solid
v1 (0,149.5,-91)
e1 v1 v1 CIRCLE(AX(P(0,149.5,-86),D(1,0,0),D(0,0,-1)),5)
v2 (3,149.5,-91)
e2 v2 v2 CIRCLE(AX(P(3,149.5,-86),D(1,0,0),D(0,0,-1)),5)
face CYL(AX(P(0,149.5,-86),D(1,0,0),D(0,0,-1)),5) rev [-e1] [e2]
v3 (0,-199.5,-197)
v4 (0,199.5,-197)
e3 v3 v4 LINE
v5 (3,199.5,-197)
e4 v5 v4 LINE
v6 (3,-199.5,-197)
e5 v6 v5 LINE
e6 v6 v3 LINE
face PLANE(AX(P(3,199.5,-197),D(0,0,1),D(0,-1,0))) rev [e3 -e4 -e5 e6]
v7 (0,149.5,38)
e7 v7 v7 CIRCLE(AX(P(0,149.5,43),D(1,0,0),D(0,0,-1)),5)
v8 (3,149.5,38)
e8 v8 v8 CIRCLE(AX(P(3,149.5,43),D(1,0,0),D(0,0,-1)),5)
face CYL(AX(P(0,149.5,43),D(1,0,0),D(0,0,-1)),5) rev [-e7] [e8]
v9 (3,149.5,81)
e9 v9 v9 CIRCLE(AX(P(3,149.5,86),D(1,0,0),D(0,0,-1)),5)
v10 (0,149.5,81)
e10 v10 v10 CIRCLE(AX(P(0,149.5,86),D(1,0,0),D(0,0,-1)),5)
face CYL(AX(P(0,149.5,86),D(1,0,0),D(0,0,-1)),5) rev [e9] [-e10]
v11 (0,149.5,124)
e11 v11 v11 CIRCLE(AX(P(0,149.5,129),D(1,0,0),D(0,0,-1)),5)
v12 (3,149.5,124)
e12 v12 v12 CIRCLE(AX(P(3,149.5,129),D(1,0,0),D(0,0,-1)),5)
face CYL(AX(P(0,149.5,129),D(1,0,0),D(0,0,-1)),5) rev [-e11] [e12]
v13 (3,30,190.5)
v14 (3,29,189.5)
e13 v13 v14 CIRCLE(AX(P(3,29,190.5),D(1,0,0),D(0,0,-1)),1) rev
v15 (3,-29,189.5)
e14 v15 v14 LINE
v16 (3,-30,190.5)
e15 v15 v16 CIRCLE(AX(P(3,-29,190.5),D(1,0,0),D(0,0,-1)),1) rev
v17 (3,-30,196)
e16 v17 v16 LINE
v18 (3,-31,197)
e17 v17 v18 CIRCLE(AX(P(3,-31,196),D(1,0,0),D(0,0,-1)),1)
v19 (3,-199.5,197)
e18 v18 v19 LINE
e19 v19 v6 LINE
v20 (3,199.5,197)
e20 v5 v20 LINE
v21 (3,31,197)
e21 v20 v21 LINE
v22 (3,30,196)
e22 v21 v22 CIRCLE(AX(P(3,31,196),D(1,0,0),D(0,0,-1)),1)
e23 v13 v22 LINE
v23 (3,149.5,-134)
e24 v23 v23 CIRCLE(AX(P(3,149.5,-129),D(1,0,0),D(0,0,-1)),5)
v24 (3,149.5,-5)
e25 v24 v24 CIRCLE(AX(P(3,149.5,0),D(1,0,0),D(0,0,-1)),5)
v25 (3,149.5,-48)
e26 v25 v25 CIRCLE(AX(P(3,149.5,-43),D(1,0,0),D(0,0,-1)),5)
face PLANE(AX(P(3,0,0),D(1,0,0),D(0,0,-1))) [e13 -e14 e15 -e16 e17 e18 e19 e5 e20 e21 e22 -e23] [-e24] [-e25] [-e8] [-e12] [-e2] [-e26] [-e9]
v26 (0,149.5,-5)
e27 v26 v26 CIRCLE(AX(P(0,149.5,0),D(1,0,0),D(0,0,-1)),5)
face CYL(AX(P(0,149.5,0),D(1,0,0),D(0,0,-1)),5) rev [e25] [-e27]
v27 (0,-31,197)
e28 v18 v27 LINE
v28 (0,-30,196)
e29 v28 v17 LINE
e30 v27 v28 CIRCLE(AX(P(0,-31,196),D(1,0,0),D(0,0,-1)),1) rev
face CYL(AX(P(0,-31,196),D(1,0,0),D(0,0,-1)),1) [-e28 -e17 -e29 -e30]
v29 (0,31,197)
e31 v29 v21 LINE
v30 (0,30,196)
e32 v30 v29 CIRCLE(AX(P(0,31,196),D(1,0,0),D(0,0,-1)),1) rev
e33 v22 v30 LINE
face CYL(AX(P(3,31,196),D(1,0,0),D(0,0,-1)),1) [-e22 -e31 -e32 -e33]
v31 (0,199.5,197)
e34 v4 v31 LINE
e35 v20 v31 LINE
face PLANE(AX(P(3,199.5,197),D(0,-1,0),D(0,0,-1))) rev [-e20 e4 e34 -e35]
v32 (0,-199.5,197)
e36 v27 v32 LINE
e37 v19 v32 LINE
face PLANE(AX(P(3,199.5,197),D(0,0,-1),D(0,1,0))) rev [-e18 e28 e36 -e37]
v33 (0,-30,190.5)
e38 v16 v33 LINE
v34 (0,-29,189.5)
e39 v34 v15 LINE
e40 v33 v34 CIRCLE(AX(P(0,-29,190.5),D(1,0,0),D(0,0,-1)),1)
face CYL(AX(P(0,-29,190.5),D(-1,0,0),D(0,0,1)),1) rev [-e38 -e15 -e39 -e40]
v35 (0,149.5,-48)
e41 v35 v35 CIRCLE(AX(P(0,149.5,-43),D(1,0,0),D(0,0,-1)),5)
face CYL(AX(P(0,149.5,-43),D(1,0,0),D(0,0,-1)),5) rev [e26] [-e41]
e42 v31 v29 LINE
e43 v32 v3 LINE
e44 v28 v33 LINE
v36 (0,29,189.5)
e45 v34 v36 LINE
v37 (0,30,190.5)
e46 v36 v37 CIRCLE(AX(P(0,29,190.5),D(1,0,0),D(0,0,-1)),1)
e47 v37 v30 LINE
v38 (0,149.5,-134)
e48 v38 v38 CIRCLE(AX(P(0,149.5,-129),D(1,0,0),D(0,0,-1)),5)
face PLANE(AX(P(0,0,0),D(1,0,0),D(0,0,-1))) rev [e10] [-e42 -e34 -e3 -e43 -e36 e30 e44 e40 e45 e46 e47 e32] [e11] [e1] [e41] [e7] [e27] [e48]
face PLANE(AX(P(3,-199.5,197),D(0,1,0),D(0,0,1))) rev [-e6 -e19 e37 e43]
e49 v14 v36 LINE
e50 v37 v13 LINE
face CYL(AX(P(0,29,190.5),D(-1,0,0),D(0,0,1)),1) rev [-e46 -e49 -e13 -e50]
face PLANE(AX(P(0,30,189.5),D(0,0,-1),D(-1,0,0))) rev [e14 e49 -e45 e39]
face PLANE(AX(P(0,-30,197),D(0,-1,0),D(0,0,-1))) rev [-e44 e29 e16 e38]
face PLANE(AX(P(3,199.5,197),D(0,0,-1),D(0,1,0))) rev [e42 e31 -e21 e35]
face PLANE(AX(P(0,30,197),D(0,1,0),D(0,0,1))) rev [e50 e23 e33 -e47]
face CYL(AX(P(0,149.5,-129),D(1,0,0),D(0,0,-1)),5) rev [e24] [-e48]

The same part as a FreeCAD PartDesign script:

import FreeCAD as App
import Part
import Sketcher

V = App.Vector


def edges_at(feature, points):
    """Names of the edges that pass closest to the given points."""
    edges = feature.Shape.Edges
    near = lambda p: min(range(len(edges)), key=lambda i: edges[i].distToShape(Part.Vertex(*p))[0])
    return sorted({f"Edge{near(p) + 1}" for p in points})

doc = App.newDocument("Part")
params = doc.addObject("Spreadsheet::Sheet", "Params")
for row, (alias, value) in enumerate([
    ("sketch1_width", "399 mm"),
    ("sketch1_height", "394 mm"),
    ("pad1_length", "3 mm"),
    ("sketch2_diameter", "10 mm"),
    ("sketch2_width", "60 mm"),
    ("sketch2_height", "7.5 mm"),
    ("fillet_radius", "1 mm"),
], start=1):
    params.set(f"A{row}", alias)
    params.set(f"B{row}", "=" + value)
    params.setAlias(f"B{row}", alias)

body = doc.addObject("PartDesign::Body", "Body")

# Sketch on YZ plane
sketch1 = body.newObject("Sketcher::SketchObject", "Sketch")
sketch1.AttachmentSupport = (doc.getObject("YZ_Plane"), [""])
sketch1.MapMode = "FlatFace"
sketch1.addGeometry([
    Part.LineSegment(V(199.5, 197, 0), V(-199.5, 197, 0)),
    Part.LineSegment(V(-199.5, 197, 0), V(-199.5, -197, 0)),
    Part.LineSegment(V(-199.5, -197, 0), V(199.5, -197, 0)),
    Part.LineSegment(V(199.5, -197, 0), V(199.5, 197, 0)),
], False)
sketch1.addConstraint([
    Sketcher.Constraint("Coincident", 0, 2, 1, 1),
    Sketcher.Constraint("Coincident", 1, 2, 2, 1),
    Sketcher.Constraint("Coincident", 2, 2, 3, 1),
    Sketcher.Constraint("Coincident", 3, 2, 0, 1),
    Sketcher.Constraint("Horizontal", 0),
    Sketcher.Constraint("Vertical", 1),
    Sketcher.Constraint("Horizontal", 2),
    Sketcher.Constraint("Vertical", 3),
    Sketcher.Constraint("Symmetric", 0, 2, 2, 2, -1, 1),
    Sketcher.Constraint("DistanceX", 0, 2, 0, 1, 399.0),
    Sketcher.Constraint("DistanceY", 1, 2, 1, 1, 394.0),
])
sketch1.setExpression("Constraints[9]", "Params.sketch1_width")
sketch1.setExpression("Constraints[10]", "Params.sketch1_height")
pad1 = body.newObject("PartDesign::Pad", "Pad")
pad1.Profile = sketch1
pad1.setExpression("Length", "Params.pad1_length")

# Sketch on YZ plane
sketch2 = body.newObject("Sketcher::SketchObject", "Sketch001")
sketch2.AttachmentSupport = (doc.getObject("YZ_Plane"), [""])
sketch2.MapMode = "FlatFace"
sketch2.AttachmentOffset = App.Placement(V(0, 0, 3), App.Rotation())
sketch2.addGeometry([
    Part.Circle(V(149.5, 129, 0), V(0, 0, 1), 5),  # 0
    Part.Circle(V(149.5, 86, 0), V(0, 0, 1), 5),  # 1
    Part.Circle(V(149.5, 43, 0), V(0, 0, 1), 5),  # 2
    Part.Circle(V(149.5, 0, 0), V(0, 0, 1), 5),  # 3
    Part.Circle(V(149.5, -43, 0), V(0, 0, 1), 5),  # 4
    Part.Circle(V(149.5, -86, 0), V(0, 0, 1), 5),  # 5
    Part.Circle(V(149.5, -129, 0), V(0, 0, 1), 5),  # 6
    Part.LineSegment(V(30, 197, 0), V(-30, 197, 0)),  # 7
    Part.LineSegment(V(-30, 197, 0), V(-30, 189.5, 0)),  # 8
    Part.LineSegment(V(-30, 189.5, 0), V(30, 189.5, 0)),  # 9
    Part.LineSegment(V(30, 189.5, 0), V(30, 197, 0)),  # 10
], False)
sketch2.addConstraint([
    Sketcher.Constraint("Coincident", 7, 2, 8, 1),
    Sketcher.Constraint("Coincident", 8, 2, 9, 1),
    Sketcher.Constraint("Coincident", 9, 2, 10, 1),
    Sketcher.Constraint("Coincident", 10, 2, 7, 1),
    Sketcher.Constraint("Horizontal", 7),
    Sketcher.Constraint("Vertical", 8),
    Sketcher.Constraint("Horizontal", 9),
    Sketcher.Constraint("Vertical", 10),
    Sketcher.Constraint("Equal", 0, 1),
    Sketcher.Constraint("Equal", 1, 2),
    Sketcher.Constraint("Equal", 2, 3),
    Sketcher.Constraint("Equal", 3, 4),
    Sketcher.Constraint("Equal", 4, 5),
    Sketcher.Constraint("Equal", 5, 6),
    Sketcher.Constraint("Symmetric", 2, 3, 4, 3, -1),
    Sketcher.Constraint("Symmetric", 1, 3, 5, 3, -1),
    Sketcher.Constraint("Symmetric", 0, 3, 6, 3, -1),
    Sketcher.Constraint("PointOnObject", 3, 3, -1),
    Sketcher.Constraint("Vertical", 0, 3, 1, 3),
    Sketcher.Constraint("Vertical", 1, 3, 2, 3),
    Sketcher.Constraint("Vertical", 2, 3, 3, 3),
    Sketcher.Constraint("Diameter", 0, 10.0),
    Sketcher.Constraint("DistanceX", 7, 2, 7, 1, 60.0),
    Sketcher.Constraint("DistanceY", 8, 2, 8, 1, 7.5),
    Sketcher.Constraint("DistanceY", -1, 1, 0, 3, 129.0),
    Sketcher.Constraint("DistanceY", -1, 1, 1, 3, 86.0),
    Sketcher.Constraint("DistanceY", -1, 1, 2, 3, 43.0),
    Sketcher.Constraint("DistanceX", 7, 2, -1, 1, 30.0),
    Sketcher.Constraint("DistanceY", -1, 1, 7, 2, 197.0),
    Sketcher.Constraint("DistanceX", -1, 1, 0, 3, 149.5),
])
sketch2.setExpression("Constraints[21]", "Params.sketch2_diameter")
sketch2.setExpression("Constraints[22]", "Params.sketch2_width")
sketch2.setExpression("Constraints[23]", "Params.sketch2_height")
pocket1 = body.newObject("PartDesign::Pocket", "Pocket")
pocket1.Profile = sketch2
pocket1.Type = "ThroughAll"
doc.recompute()

fillet = body.newObject("PartDesign::Fillet", "Fillet")
fillet.Base = (pocket1, edges_at(pocket1, [
    (1.5, -30, 197),
    (1.5, 30, 197),
    (1.5, 30, 189.5),
    (1.5, -30, 189.5),
]))
fillet.setExpression("Radius", "Params.fillet_radius")

doc.recompute()
